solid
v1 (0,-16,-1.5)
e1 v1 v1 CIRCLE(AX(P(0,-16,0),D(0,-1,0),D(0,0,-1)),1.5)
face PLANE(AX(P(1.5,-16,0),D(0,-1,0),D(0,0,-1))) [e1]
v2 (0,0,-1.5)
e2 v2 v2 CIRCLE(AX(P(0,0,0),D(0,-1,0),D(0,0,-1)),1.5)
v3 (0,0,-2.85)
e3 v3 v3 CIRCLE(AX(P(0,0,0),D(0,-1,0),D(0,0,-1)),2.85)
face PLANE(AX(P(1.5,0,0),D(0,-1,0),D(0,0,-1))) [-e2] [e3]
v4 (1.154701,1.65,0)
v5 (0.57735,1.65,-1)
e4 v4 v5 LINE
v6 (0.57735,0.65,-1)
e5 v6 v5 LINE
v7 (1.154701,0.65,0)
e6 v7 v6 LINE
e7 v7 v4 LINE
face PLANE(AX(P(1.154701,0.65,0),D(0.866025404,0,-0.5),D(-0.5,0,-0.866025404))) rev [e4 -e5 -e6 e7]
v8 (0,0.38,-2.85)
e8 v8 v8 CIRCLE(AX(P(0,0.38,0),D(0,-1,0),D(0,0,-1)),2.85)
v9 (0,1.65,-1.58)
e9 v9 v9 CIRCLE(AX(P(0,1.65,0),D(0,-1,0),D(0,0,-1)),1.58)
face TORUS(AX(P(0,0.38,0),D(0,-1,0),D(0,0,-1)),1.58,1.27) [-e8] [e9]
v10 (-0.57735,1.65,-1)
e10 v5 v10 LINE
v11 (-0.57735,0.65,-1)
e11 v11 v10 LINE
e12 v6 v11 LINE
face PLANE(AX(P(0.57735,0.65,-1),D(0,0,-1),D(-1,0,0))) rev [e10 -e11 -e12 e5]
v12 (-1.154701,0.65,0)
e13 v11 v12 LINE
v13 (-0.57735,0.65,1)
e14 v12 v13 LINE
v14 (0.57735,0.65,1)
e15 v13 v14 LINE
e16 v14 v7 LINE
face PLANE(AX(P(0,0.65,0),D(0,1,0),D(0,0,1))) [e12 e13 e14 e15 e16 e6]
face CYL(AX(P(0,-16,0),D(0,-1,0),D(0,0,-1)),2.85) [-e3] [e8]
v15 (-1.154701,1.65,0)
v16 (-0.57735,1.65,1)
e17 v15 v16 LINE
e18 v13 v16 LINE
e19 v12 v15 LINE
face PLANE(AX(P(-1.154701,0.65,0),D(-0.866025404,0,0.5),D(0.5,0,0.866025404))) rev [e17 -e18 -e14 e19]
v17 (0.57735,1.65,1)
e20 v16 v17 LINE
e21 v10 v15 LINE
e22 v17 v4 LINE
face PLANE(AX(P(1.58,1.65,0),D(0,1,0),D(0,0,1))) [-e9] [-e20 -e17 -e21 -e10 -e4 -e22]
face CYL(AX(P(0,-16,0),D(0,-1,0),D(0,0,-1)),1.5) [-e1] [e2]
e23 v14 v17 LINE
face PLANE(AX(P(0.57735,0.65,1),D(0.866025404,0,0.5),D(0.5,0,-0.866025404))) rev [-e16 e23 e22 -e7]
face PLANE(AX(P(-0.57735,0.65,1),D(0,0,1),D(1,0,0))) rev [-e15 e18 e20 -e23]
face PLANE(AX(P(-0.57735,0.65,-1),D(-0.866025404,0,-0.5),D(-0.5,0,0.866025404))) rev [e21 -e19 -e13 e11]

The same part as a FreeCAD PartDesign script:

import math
import FreeCAD as App
import Part
import Sketcher

V = App.Vector
Q = App.Units.Quantity

doc = App.newDocument("Part")
body = doc.addObject("PartDesign::Body", "Body")

sketch1 = body.newObject("Sketcher::SketchObject", "Sketch")
sketch1.AttachmentSupport = (doc.getObject("XY_Plane"), [""])
sketch1.MapMode = "FlatFace"
sketch1.addGeometry(Part.LineSegment(V(1.5, 0, 0), V(2.85, 0, 0)), False)
sketch1.addGeometry(Part.LineSegment(V(2.85, 0, 0), V(2.85, 0.38, 0)), False)
sketch1.addGeometry(Part.ArcOfCircle(Part.Circle(V(1.58, 0.38, 0), V(0, 0, 1), 1.27), math.radians(0), math.radians(90)), False)
sketch1.addGeometry(Part.LineSegment(V(1.58, 1.65, 0), V(0, 1.65, 0)), False)
sketch1.addGeometry(Part.LineSegment(V(0, 1.65, 0), V(0, -16, 0)), False)
sketch1.addGeometry(Part.LineSegment(V(0, -16, 0), V(1.5, -16, 0)), False)
sketch1.addGeometry(Part.LineSegment(V(1.5, -16, 0), V(1.5, 0, 0)), False)
sketch1.addConstraint(Sketcher.Constraint("Coincident", 0, 2, 1, 1))
sketch1.addConstraint(Sketcher.Constraint("Tangent", 1, 2, 2, 1))
sketch1.addConstraint(Sketcher.Constraint("Tangent", 2, 2, 3, 1))
sketch1.addConstraint(Sketcher.Constraint("Coincident", 3, 2, 4, 1))
sketch1.addConstraint(Sketcher.Constraint("Coincident", 4, 2, 5, 1))
sketch1.addConstraint(Sketcher.Constraint("Coincident", 5, 2, 6, 1))
sketch1.addConstraint(Sketcher.Constraint("Coincident", 6, 2, 0, 1))
sketch1.addConstraint(Sketcher.Constraint("Horizontal", 0))
sketch1.addConstraint(Sketcher.Constraint("Vertical", 1))
sketch1.addConstraint(Sketcher.Constraint("Horizontal", 3))
sketch1.addConstraint(Sketcher.Constraint("Vertical", 4))
sketch1.addConstraint(Sketcher.Constraint("Horizontal", 5))
sketch1.addConstraint(Sketcher.Constraint("Vertical", 6))
sketch1.addConstraint(Sketcher.Constraint("PointOnObject", 0, 2, -1))
sketch1.addConstraint(Sketcher.Constraint("PointOnObject", 3, 2, -2))
sketch1.addConstraint(Sketcher.Constraint("DistanceY", 6, 1, 6, 2, 16.0))
sketch1.addConstraint(Sketcher.Constraint("Radius", 2, 1.27))
sketch1.addConstraint(Sketcher.Constraint("DistanceX", 5, 1, 5, 2, 1.5))
sketch1.addConstraint(Sketcher.Constraint("DistanceX", 0, 1, 0, 2, 1.35))
sketch1.addConstraint(Sketcher.Constraint("DistanceY", 1, 1, 1, 2, 0.38))
revolution = body.newObject("PartDesign::Revolution", "Revolution")
revolution.Profile = sketch1
revolution.ReferenceAxis = (sketch1, ["V_Axis"])
revolution.Angle = 360

sketch2 = body.newObject("Sketcher::SketchObject", "Sketch001")
sketch2.AttachmentSupport = (doc.getObject("XZ_Plane"), [""])
sketch2.MapMode = "FlatFace"
sketch2.AttachmentOffset = App.Placement(V(0, 0, -1.65), App.Rotation())
sketch2.addGeometry(Part.LineSegment(V(0.6, -1, 0), V(-0.6, -1, 0)), False)
sketch2.addGeometry(Part.LineSegment(V(-0.6, -1, 0), V(-1.2, 0, 0)), False)
sketch2.addGeometry(Part.LineSegment(V(-1.2, 0, 0), V(-0.6, 1, 0)), False)
sketch2.addGeometry(Part.LineSegment(V(-0.6, 1, 0), V(0.6, 1, 0)), False)
sketch2.addGeometry(Part.LineSegment(V(0.6, 1, 0), V(1.2, 0, 0)), False)
sketch2.addGeometry(Part.LineSegment(V(1.2, 0, 0), V(0.6, -1, 0)), False)
sketch2.addConstraint(Sketcher.Constraint("Coincident", 0, 2, 1, 1))
sketch2.addConstraint(Sketcher.Constraint("Coincident", 1, 2, 2, 1))
sketch2.addConstraint(Sketcher.Constraint("Coincident", 2, 2, 3, 1))
sketch2.addConstraint(Sketcher.Constraint("Coincident", 3, 2, 4, 1))
sketch2.addConstraint(Sketcher.Constraint("Coincident", 4, 2, 5, 1))
sketch2.addConstraint(Sketcher.Constraint("Coincident", 5, 2, 0, 1))
sketch2.addConstraint(Sketcher.Constraint("Horizontal", 0))
sketch2.addConstraint(Sketcher.Constraint("Horizontal", 3))
sketch2.addConstraint(Sketcher.Constraint("Symmetric", 0, 2, 3, 2, -1, 1))
sketch2.addConstraint(Sketcher.Constraint("Symmetric", 1, 2, 4, 2, -1, 1))
sketch2.addConstraint(Sketcher.Constraint("PointOnObject", 1, 2, -1))
sketch2.addConstraint(Sketcher.Constraint("Parallel", 2, 5))
sketch2.addConstraint(Sketcher.Constraint("Vertical", 0, 2, 2, 2))
sketch2.addConstraint(Sketcher.Constraint("Angle", 1, Q("120 deg")))
sketch2.addConstraint(Sketcher.Constraint("DistanceY", 0, 2, -1, 1, 1.0))
sketch2.addConstraint(Sketcher.Constraint("DistanceX", 0, 2, 0, 1, 1.154701))
pocket1 = body.newObject("PartDesign::Pocket", "Pocket")
pocket1.Profile = sketch2
pocket1.Length = 1
pocket1.Reversed = True

doc.recompute()
